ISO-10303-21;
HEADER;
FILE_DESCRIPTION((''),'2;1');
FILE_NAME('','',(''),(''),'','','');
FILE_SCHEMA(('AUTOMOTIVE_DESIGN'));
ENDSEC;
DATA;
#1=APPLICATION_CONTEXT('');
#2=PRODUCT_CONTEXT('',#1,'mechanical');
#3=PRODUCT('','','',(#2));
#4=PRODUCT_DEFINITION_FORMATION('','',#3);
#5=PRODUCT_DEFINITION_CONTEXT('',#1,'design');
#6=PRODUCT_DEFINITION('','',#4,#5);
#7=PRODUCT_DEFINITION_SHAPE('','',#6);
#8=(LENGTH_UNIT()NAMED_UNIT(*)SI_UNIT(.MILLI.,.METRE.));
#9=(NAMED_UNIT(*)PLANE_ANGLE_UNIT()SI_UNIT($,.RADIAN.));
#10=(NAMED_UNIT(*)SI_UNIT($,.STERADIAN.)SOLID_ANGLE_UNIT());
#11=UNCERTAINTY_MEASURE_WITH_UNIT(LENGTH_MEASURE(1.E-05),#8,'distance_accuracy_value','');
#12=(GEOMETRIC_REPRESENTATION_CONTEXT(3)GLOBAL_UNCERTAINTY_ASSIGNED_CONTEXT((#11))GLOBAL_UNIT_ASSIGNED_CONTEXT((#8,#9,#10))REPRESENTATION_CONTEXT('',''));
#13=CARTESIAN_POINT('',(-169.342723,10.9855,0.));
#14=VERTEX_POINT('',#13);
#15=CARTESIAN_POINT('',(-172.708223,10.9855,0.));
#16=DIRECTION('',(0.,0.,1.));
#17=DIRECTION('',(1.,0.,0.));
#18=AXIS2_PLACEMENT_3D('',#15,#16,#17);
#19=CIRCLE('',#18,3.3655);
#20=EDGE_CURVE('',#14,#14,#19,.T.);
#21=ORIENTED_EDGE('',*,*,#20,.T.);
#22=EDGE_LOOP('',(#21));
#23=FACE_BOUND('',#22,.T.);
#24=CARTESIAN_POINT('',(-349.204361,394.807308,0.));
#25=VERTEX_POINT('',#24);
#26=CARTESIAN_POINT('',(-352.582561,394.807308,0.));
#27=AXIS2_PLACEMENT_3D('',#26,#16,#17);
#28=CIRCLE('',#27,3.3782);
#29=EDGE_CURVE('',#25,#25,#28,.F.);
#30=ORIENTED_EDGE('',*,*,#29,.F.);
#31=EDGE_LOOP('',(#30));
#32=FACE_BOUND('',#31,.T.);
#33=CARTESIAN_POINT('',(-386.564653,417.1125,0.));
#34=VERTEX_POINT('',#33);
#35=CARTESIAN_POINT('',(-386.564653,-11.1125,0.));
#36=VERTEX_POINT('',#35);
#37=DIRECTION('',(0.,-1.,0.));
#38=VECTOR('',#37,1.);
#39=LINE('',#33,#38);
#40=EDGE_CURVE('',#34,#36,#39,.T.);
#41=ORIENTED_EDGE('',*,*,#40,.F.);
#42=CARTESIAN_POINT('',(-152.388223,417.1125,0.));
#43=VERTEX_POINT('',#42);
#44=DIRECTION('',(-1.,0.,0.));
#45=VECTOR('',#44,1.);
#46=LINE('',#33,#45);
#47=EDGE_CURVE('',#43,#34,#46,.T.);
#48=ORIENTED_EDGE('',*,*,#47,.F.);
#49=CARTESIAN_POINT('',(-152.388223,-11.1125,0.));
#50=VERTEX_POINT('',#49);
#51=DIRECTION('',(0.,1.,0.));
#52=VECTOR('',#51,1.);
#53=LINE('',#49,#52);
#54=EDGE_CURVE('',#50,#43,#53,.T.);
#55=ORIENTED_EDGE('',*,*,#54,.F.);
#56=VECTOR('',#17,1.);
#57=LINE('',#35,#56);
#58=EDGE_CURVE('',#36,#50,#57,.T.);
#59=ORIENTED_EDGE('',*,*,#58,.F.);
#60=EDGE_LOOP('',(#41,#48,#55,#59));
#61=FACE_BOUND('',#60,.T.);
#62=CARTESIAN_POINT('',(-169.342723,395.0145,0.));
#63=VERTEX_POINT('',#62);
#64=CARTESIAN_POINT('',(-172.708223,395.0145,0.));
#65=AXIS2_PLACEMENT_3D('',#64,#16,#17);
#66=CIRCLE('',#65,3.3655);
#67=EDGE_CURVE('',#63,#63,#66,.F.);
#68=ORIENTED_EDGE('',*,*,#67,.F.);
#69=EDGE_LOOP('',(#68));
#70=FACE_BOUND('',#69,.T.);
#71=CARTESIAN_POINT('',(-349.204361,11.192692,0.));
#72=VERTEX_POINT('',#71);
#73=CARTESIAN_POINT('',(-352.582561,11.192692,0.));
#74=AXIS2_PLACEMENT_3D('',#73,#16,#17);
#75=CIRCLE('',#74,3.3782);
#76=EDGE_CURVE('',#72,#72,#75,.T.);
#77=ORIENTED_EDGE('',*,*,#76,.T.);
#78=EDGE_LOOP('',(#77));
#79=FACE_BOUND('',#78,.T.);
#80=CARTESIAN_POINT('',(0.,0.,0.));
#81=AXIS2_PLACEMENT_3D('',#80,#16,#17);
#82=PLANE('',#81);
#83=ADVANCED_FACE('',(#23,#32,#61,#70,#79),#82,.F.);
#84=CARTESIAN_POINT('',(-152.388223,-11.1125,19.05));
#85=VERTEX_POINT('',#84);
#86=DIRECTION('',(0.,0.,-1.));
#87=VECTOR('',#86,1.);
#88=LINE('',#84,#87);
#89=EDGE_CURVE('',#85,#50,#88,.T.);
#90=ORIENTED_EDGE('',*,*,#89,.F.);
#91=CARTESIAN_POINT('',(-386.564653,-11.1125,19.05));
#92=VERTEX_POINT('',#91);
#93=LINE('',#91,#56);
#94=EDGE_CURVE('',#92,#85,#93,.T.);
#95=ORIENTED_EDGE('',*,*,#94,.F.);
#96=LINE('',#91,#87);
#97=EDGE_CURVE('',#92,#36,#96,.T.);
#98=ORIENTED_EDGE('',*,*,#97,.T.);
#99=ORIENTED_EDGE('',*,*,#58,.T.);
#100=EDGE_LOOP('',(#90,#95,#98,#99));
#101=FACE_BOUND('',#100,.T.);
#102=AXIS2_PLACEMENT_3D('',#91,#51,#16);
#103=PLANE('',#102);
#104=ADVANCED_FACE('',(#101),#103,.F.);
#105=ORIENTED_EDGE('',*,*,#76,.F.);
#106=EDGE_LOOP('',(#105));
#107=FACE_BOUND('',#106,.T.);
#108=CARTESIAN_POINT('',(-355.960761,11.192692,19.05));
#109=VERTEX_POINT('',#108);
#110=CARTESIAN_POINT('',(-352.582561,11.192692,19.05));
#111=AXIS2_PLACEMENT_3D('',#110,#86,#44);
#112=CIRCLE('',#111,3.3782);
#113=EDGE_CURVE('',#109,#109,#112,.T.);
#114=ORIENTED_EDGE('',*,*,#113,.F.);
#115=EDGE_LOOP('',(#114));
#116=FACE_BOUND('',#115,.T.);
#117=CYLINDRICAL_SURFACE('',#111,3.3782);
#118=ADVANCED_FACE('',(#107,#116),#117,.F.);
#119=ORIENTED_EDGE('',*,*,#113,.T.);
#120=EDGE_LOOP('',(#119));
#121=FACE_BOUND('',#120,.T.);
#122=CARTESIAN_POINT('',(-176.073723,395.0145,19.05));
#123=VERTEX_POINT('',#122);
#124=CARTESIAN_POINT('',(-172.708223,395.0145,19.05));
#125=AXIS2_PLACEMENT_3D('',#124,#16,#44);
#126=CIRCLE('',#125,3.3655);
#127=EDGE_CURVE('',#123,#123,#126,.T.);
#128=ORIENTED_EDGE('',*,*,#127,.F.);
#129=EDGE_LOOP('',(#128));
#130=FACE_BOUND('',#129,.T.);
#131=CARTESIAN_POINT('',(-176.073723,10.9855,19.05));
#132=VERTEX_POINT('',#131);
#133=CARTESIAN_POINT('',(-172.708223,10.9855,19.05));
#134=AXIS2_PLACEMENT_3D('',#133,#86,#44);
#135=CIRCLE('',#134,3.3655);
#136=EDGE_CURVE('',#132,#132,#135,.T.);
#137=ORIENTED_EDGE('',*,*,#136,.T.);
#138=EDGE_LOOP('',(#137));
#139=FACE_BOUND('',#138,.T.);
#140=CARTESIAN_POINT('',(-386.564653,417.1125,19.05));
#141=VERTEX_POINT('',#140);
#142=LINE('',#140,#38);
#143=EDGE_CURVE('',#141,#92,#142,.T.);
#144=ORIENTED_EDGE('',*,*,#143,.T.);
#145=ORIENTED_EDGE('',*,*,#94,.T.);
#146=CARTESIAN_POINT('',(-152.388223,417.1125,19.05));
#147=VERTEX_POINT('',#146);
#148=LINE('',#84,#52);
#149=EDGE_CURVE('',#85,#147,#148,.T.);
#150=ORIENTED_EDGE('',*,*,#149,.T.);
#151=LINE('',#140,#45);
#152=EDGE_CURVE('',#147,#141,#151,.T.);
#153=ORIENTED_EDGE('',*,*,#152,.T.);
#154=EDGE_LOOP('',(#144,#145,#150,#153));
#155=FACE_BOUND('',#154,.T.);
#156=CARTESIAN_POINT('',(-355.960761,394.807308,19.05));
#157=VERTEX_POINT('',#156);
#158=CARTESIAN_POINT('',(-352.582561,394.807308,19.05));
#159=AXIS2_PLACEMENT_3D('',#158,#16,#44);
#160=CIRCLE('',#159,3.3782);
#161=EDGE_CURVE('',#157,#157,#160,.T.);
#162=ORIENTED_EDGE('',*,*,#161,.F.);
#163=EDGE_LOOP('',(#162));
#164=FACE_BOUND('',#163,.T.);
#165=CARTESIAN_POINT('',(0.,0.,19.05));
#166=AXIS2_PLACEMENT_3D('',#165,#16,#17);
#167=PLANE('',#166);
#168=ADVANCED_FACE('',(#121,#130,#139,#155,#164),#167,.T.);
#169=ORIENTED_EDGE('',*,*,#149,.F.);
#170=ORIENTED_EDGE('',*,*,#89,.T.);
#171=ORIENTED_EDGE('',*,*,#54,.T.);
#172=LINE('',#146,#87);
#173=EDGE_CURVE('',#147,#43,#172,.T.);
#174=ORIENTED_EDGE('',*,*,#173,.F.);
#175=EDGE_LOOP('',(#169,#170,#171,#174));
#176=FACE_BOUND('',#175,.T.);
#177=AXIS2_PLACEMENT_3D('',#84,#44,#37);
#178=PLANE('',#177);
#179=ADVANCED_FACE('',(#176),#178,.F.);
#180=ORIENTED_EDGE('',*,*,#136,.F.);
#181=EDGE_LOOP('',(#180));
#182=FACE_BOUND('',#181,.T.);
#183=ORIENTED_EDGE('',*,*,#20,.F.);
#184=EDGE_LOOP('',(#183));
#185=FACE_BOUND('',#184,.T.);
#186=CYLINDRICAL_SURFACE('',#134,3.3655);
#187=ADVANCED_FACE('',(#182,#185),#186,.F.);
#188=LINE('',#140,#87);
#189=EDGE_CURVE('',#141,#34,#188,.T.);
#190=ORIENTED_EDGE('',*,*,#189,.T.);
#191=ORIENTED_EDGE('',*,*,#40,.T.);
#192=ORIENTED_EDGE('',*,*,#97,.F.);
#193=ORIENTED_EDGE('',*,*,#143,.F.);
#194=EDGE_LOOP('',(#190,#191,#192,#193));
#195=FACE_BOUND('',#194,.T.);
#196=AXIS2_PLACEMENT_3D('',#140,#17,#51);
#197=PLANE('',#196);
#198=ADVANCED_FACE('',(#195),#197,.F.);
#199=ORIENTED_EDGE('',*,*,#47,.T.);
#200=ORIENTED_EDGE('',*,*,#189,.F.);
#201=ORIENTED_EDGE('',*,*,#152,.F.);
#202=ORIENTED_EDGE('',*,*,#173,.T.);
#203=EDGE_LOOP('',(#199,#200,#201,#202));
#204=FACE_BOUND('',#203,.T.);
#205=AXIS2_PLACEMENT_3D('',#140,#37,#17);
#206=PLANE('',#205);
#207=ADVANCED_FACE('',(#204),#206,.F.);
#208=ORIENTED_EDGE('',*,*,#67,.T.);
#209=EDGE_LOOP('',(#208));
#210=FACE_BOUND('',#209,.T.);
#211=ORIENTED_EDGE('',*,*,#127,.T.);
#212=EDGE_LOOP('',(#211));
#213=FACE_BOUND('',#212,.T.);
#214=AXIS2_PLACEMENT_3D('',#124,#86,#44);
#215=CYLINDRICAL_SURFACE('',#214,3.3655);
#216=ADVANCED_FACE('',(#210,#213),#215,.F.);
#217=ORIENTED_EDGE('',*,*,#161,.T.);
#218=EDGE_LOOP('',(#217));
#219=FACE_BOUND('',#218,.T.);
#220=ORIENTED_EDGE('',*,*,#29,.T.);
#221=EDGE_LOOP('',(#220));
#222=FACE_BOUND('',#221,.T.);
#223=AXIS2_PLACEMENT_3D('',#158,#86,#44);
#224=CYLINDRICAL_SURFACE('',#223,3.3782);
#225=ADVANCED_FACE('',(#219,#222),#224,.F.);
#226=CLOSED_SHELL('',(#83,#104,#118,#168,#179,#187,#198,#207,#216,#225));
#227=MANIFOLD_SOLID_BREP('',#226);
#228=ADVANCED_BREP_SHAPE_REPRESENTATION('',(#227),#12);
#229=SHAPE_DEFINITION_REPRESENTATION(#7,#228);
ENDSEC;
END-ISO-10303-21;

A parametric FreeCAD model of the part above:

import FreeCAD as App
import Part
import Sketcher
from FreeCAD import Vector
Q = App.Units.Quantity


def add_polygon(sketch, points):
    """Adds a closed chain of lines whose ends are joined by coincident constraints."""
    first, n = sketch.GeometryCount, len(points)
    for a, b in zip(points, points[1:] + points[:1]):
        sketch.addGeometry(Part.LineSegment(App.Vector(*a, 0), App.Vector(*b, 0)), False)
    for i in range(n):
        sketch.addConstraint(Sketcher.Constraint("Coincident", first + i, 2, first + (i + 1) % n, 1))

doc = App.newDocument("Part")
body = doc.addObject("PartDesign::Body", "Body")

sketch1 = doc.addObject("Sketcher::SketchObject", "Sketch")
body.addObject(sketch1)
sketch1.AttachmentSupport = (doc.XY_Plane, [""])
sketch1.MapMode = "FlatFace"
add_polygon(sketch1, [(-386.564653, 417.1125), (-386.564653, -11.1125), (-152.388223, -11.1125), (-152.388223, 417.1125)])
sketch1.addConstraint(Sketcher.Constraint("Vertical", 0))
sketch1.addConstraint(Sketcher.Constraint("Horizontal", 1))
sketch1.addConstraint(Sketcher.Constraint("Vertical", 2))
sketch1.addConstraint(Sketcher.Constraint("Horizontal", 3))
sketch1.addConstraint(Sketcher.Constraint("DistanceY", 0, 2, -1, 1, Q("0.4375 in")))
sketch1.addConstraint(Sketcher.Constraint("DistanceY", 0, 2, 0, 1, 428.225))
sketch1.addConstraint(Sketcher.Constraint("DistanceX", 1, 1, 1, 2, 234.176429))
sketch1.addConstraint(Sketcher.Constraint("DistanceX", 0, 2, -1, 1, 386.564653))
pad1 = doc.addObject("PartDesign::Pad", "Pad")
body.addObject(pad1)
pad1.Profile = sketch1
pad1.Length = Q("0.75 in")

sketch2 = doc.addObject("Sketcher::SketchObject", "Sketch001")
body.addObject(sketch2)
sketch2.AttachmentSupport = (doc.XY_Plane, [""])
sketch2.MapMode = "FlatFace"
sketch2.AttachmentOffset = App.Placement(Vector(0, 0, -0.075 * 25.4), App.Rotation())
sketch2.addGeometry(Part.Circle(Vector(-172.708223, 10.9855, 0), Vector(0, 0, 1), 3.3655), False)
sketch2.addConstraint(Sketcher.Constraint("Diameter", 0, Q("0.265 in")))
sketch2.addConstraint(Sketcher.Constraint("DistanceY", -1, 1, 0, 3, Q("0.4325 in")))
sketch2.addConstraint(Sketcher.Constraint("DistanceX", 0, 3, -1, 1, 172.708223))
pocket1 = doc.addObject("PartDesign::Pocket", "Pocket")
body.addObject(pocket1)
pocket1.Profile = sketch2
pocket1.Type = "ThroughAll"
pocket1.Reversed = True

sketch3 = doc.addObject("Sketcher::SketchObject", "Sketch002")
body.addObject(sketch3)
sketch3.AttachmentSupport = (doc.XY_Plane, [""])
sketch3.MapMode = "FlatFace"
sketch3.AttachmentOffset = App.Placement(Vector(0, 0, -0.205 * 25.4), App.Rotation())
sketch3.addGeometry(Part.Circle(Vector(-352.582561, 11.192692, 0), Vector(0, 0, 1), 3.3782), False)
sketch3.addConstraint(Sketcher.Constraint("Diameter", 0, Q("0.266 in")))
sketch3.addConstraint(Sketcher.Constraint("DistanceX", 0, 3, -1, 1, 352.582561))
sketch3.addConstraint(Sketcher.Constraint("DistanceY", -1, 1, 0, 3, 11.192692))
pocket2 = doc.addObject("PartDesign::Pocket", "Pocket001")
body.addObject(pocket2)
pocket2.Profile = sketch3
pocket2.Type = "ThroughAll"
pocket2.Reversed = True
doc.recompute()

datumplane = doc.addObject("PartDesign::Plane", "DatumPlane")
body.addObject(datumplane)
datumplane.AttachmentSupport = (doc.XZ_Plane, [""])
datumplane.MapMode = "FlatFace"
datumplane.AttachmentOffset = App.Placement(Vector(0, 0, -203), App.Rotation())
mirrored = doc.addObject("PartDesign::Mirrored", "Mirrored")
body.addObject(mirrored)
mirrored.Originals = [pocket1, pocket2]
mirrored.MirrorPlane = (datumplane, [""])
body.Tip = mirrored

doc.recompute()
